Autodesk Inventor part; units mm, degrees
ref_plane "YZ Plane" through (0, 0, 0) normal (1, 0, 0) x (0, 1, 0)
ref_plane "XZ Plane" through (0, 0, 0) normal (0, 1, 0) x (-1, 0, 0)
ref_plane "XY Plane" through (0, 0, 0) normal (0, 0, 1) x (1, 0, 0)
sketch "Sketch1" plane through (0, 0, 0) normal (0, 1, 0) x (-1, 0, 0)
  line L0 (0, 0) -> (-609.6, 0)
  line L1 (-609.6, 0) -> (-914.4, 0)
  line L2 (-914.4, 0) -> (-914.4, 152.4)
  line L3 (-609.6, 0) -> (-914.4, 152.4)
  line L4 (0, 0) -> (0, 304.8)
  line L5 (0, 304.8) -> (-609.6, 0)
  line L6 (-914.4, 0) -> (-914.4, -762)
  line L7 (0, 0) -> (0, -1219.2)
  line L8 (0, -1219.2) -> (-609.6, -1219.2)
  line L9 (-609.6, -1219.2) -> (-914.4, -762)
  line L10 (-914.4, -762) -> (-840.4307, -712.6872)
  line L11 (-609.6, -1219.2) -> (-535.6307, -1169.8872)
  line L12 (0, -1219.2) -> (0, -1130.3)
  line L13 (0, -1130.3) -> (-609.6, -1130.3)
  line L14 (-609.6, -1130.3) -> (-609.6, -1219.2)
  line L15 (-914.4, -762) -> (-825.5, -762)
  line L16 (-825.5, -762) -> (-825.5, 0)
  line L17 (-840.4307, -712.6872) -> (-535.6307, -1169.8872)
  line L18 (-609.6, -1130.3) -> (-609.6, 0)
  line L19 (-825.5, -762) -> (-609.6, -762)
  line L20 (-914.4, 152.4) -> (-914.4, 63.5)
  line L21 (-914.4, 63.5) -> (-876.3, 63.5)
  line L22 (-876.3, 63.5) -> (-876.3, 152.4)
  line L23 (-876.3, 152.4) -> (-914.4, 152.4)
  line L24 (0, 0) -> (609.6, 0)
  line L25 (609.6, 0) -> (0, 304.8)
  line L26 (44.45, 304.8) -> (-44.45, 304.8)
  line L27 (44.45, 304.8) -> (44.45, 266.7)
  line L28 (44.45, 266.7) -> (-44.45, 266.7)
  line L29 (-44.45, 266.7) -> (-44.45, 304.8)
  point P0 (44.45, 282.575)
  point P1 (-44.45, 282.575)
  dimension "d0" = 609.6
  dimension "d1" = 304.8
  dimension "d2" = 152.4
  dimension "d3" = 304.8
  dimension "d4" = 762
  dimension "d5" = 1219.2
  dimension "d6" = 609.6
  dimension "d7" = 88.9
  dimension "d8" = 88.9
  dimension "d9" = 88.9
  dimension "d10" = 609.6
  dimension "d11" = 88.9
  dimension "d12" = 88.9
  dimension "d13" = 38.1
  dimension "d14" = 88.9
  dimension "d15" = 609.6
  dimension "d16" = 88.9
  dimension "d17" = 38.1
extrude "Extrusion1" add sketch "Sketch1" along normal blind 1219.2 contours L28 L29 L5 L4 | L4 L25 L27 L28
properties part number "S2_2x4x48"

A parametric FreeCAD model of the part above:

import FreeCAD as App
import Part
import Sketcher
from FreeCAD import Vector
Q = App.Units.Quantity

doc = App.newDocument("Part")
body = doc.addObject("PartDesign::Body", "Body")

# Sketch on XZ plane
sketch1 = body.newObject("Sketcher::SketchObject", "Sketch")
sketch1.AttachmentSupport = (doc.getObject("XZ_Plane"), [""])
sketch1.MapMode = "FlatFace"
sketch1.addGeometry(Part.LineSegment(Vector(44.45, 266.7, 0), Vector(-44.45, 266.7, 0)), False)
sketch1.addGeometry(Part.LineSegment(Vector(-44.45, 266.7, 0), Vector(-44.45, 282.575, 0)), False)
sketch1.addGeometry(Part.LineSegment(Vector(-44.45, 282.575, 0), Vector(0, 304.8, 0)), False)
sketch1.addGeometry(Part.LineSegment(Vector(0, 304.8, 0), Vector(44.45, 282.575, 0)), False)
sketch1.addGeometry(Part.LineSegment(Vector(44.45, 282.575, 0), Vector(44.45, 266.7, 0)), False)
sketch1.addConstraint(Sketcher.Constraint("Coincident", 0, 2, 1, 1))
sketch1.addConstraint(Sketcher.Constraint("Coincident", 1, 2, 2, 1))
sketch1.addConstraint(Sketcher.Constraint("Coincident", 2, 2, 3, 1))
sketch1.addConstraint(Sketcher.Constraint("Coincident", 3, 2, 4, 1))
sketch1.addConstraint(Sketcher.Constraint("Coincident", 4, 2, 0, 1))
sketch1.addConstraint(Sketcher.Constraint("Horizontal", 0))
sketch1.addConstraint(Sketcher.Constraint("Vertical", 1))
sketch1.addConstraint(Sketcher.Constraint("Vertical", 4))
sketch1.addConstraint(Sketcher.Constraint("Symmetric", 1, 2, 3, 2, -2))
sketch1.addConstraint(Sketcher.Constraint("PointOnObject", 2, 2, -2))
sketch1.addConstraint(Sketcher.Constraint("DistanceX", 0, 2, 0, 1, Q("3.5 in")))
sketch1.addConstraint(Sketcher.Constraint("DistanceY", -1, 1, 2, 2, Q("12 in")))
sketch1.addConstraint(Sketcher.Constraint("DistanceY", 0, 2, 2, 2, Q("1.5 in")))
sketch1.addConstraint(Sketcher.Constraint("DistanceY", 1, 1, 1, 2, Q("0.625 in")))
pad1 = body.newObject("PartDesign::Pad", "Pad")
pad1.Profile = sketch1
pad1.Length = Q("48 in")
pad1.Reversed = True

doc.recompute()
